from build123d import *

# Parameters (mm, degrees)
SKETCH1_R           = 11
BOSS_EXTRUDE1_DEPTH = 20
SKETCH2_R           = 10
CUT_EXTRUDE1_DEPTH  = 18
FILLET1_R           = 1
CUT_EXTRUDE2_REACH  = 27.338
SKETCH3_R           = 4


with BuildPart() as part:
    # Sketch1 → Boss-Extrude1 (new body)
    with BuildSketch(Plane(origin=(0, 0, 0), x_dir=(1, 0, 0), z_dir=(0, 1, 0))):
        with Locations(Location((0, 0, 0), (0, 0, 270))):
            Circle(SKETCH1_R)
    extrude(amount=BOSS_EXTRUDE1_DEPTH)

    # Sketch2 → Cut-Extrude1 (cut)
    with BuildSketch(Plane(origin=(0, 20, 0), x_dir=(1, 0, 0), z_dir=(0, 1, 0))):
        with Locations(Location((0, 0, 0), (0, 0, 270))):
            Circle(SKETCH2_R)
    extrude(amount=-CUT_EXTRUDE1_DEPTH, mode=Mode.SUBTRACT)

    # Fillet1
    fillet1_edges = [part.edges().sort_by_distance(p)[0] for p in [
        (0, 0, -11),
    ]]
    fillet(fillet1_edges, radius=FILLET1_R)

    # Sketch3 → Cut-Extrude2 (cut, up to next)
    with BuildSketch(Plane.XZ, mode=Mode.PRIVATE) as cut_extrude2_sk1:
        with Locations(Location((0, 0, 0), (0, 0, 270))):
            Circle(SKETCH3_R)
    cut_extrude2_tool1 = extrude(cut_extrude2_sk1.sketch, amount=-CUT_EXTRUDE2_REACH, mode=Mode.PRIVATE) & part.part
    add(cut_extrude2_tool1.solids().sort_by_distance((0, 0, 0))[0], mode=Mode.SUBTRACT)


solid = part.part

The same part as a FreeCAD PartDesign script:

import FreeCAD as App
import Part
import Sketcher

V = App.Vector
Q = App.Units.Quantity


def edges_at(feature, points):
    """Names of the edges that pass closest to the given points."""
    edges = feature.Shape.Edges
    near = lambda p: min(range(len(edges)), key=lambda i: edges[i].distToShape(Part.Vertex(*p))[0])
    return sorted({f"Edge{near(p) + 1}" for p in points})

doc = App.newDocument("Part")
body = doc.addObject("PartDesign::Body", "Body")

sketch1 = doc.addObject("Sketcher::SketchObject", "Sketch")
body.addObject(sketch1)
sketch1.AttachmentSupport = (doc.XZ_Plane, [""])
sketch1.MapMode = "FlatFace"
sketch1.addGeometry(Part.Circle(V(0, 0, 0), V(0, 0, 1), 11), False)
sketch1.addConstraint([
    Sketcher.Constraint("Coincident", 0, 3, -1, 1),
    Sketcher.Constraint("Diameter", 0, Q("22 mm")),
])
pad1 = doc.addObject("PartDesign::Pad", "Pad")
body.addObject(pad1)
pad1.Profile = sketch1
pad1.Length = 20
pad1.Reversed = True

sketch2 = doc.addObject("Sketcher::SketchObject", "Sketch001")
body.addObject(sketch2)
sketch2.AttachmentSupport = (doc.XZ_Plane, [""])
sketch2.MapMode = "FlatFace"
sketch2.AttachmentOffset = App.Placement(V(0, 0, -20), App.Rotation())
sketch2.addGeometry(Part.Circle(V(0, 0, 0), V(0, 0, 1), 10), False)
sketch2.addConstraint([
    Sketcher.Constraint("Coincident", 0, 3, -1, 1),
    Sketcher.Constraint("Diameter", 0, Q("20 mm")),
])
pocket1 = doc.addObject("PartDesign::Pocket", "Pocket")
body.addObject(pocket1)
pocket1.Profile = sketch2
pocket1.Length = 18
pocket1.Reversed = True
doc.recompute()

fillet = doc.addObject("PartDesign::Fillet", "Fillet")
body.addObject(fillet)
fillet.Base = (pocket1, edges_at(pocket1, [(0, 0, -11)]))
fillet.Radius = 1

sketch3 = doc.addObject("Sketcher::SketchObject", "Sketch002")
body.addObject(sketch3)
sketch3.AttachmentSupport = (doc.XZ_Plane, [""])
sketch3.MapMode = "FlatFace"
sketch3.addGeometry(Part.Circle(V(0, 0, 0), V(0, 0, 1), 4), False)
sketch3.addConstraint([
    Sketcher.Constraint("Coincident", 0, 3, -1, 1),
    Sketcher.Constraint("Diameter", 0, Q("8 mm")),
])
pocket2 = doc.addObject("PartDesign::Pocket", "Pocket001")
body.addObject(pocket2)
pocket2.Profile = sketch3
pocket2.Type = "UpToFirst"

doc.recompute()
